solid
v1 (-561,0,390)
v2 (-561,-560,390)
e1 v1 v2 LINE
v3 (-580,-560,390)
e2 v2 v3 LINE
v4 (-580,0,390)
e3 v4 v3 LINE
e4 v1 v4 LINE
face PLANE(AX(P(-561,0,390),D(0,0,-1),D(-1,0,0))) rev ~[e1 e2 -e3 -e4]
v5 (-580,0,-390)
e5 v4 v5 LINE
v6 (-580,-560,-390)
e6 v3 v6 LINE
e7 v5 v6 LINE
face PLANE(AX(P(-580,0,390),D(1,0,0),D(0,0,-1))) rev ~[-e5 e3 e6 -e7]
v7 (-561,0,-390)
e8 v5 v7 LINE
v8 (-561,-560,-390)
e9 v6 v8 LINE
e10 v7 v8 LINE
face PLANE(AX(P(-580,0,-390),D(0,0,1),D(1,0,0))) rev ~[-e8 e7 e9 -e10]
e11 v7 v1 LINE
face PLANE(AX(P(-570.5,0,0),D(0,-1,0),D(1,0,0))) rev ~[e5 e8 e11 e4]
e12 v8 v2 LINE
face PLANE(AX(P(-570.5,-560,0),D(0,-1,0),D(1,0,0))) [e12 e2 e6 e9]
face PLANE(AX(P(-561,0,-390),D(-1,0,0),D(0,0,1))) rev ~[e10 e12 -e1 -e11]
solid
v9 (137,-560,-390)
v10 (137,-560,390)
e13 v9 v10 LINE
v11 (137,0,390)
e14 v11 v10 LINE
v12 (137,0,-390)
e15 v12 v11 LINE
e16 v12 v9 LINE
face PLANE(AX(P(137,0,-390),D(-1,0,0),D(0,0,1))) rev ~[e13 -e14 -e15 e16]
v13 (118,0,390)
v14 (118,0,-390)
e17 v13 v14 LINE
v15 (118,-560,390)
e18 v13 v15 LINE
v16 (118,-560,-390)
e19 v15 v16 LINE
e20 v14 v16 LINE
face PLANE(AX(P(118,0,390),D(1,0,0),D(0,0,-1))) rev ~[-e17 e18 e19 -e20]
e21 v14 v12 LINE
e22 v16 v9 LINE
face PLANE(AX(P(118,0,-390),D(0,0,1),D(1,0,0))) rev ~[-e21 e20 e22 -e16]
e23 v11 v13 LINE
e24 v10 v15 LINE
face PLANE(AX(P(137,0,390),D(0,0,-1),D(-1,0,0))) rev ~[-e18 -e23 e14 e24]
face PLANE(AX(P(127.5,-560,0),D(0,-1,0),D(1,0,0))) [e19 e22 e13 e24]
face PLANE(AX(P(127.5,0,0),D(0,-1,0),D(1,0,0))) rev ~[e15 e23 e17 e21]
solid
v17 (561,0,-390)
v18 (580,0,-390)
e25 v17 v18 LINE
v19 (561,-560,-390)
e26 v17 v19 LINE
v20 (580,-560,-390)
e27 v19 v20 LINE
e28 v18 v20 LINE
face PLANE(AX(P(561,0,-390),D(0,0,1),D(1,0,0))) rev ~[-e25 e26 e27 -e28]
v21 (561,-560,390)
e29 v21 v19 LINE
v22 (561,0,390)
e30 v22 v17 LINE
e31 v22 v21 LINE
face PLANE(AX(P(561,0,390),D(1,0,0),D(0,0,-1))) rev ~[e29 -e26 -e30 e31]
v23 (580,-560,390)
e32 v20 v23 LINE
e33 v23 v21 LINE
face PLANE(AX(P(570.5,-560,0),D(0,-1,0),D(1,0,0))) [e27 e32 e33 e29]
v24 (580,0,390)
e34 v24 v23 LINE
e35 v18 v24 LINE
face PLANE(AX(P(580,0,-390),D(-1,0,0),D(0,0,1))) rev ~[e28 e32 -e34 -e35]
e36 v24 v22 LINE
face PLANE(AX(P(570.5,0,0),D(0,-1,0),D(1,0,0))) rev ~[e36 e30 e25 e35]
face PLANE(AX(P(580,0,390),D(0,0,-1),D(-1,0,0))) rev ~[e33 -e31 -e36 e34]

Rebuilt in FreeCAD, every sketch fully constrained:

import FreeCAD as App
import Part
import Sketcher
Q = App.Units.Quantity

doc = App.newDocument("Part")
body = doc.addObject("PartDesign::Body", "Body")

# Sketch on XZ plane
sketch1 = body.newObject("Sketcher::SketchObject", "Sketch")
sketch1.AttachmentSupport = (doc.getObject("XZ_Plane"), [""])
sketch1.MapMode = "FlatFace"
sketch1.addGeometry(Part.LineSegment(App.Vector(-580, 390, 0), App.Vector(-580, -390, 0)), False)
sketch1.addGeometry(Part.LineSegment(App.Vector(-580, -390, 0), App.Vector(-561, -390, 0)), False)
sketch1.addGeometry(Part.LineSegment(App.Vector(-561, -390, 0), App.Vector(-561, 390, 0)), False)
sketch1.addGeometry(Part.LineSegment(App.Vector(-561, 390, 0), App.Vector(-580, 390, 0)), False)
sketch1.addConstraint(Sketcher.Constraint("Coincident", 0, 2, 1, 1))
sketch1.addConstraint(Sketcher.Constraint("Coincident", 1, 2, 2, 1))
sketch1.addConstraint(Sketcher.Constraint("Coincident", 2, 2, 3, 1))
sketch1.addConstraint(Sketcher.Constraint("Coincident", 3, 2, 0, 1))
sketch1.addConstraint(Sketcher.Constraint("Vertical", 0))
sketch1.addConstraint(Sketcher.Constraint("Horizontal", 1))
sketch1.addConstraint(Sketcher.Constraint("Vertical", 2))
sketch1.addConstraint(Sketcher.Constraint("Horizontal", 3))
sketch1.addConstraint(Sketcher.Constraint("DistanceX", 1, 1, 1, 2, Q("19 mm")))
sketch1.addConstraint(Sketcher.Constraint("DistanceY", 0, 2, 0, 1, Q("780 mm")))
sketch1.addConstraint(Sketcher.Constraint("DistanceX", 0, 2, -1, 1, Q("580 mm")))
sketch1.addConstraint(Sketcher.Constraint("DistanceY", 0, 2, -1, 1, Q("390 mm")))
pad1 = body.newObject("PartDesign::Pad", "Pad")
pad1.Profile = sketch1
pad1.Length = 560
body2 = doc.addObject("PartDesign::Body", "Body001")

# Sketch on XZ plane
sketch2 = body2.newObject("Sketcher::SketchObject", "Sketch001")
sketch2.AttachmentSupport = (doc.getObject("XZ_Plane001"), [""])
sketch2.MapMode = "FlatFace"
sketch2.addGeometry(Part.LineSegment(App.Vector(561, -390, 0), App.Vector(580, -390, 0)), False)
sketch2.addGeometry(Part.LineSegment(App.Vector(580, -390, 0), App.Vector(580, 390, 0)), False)
sketch2.addGeometry(Part.LineSegment(App.Vector(580, 390, 0), App.Vector(561, 390, 0)), False)
sketch2.addGeometry(Part.LineSegment(App.Vector(561, 390, 0), App.Vector(561, -390, 0)), False)
sketch2.addConstraint(Sketcher.Constraint("Coincident", 0, 2, 1, 1))
sketch2.addConstraint(Sketcher.Constraint("Coincident", 1, 2, 2, 1))
sketch2.addConstraint(Sketcher.Constraint("Coincident", 2, 2, 3, 1))
sketch2.addConstraint(Sketcher.Constraint("Coincident", 3, 2, 0, 1))
sketch2.addConstraint(Sketcher.Constraint("Horizontal", 0))
sketch2.addConstraint(Sketcher.Constraint("Vertical", 1))
sketch2.addConstraint(Sketcher.Constraint("Horizontal", 2))
sketch2.addConstraint(Sketcher.Constraint("Vertical", 3))
sketch2.addConstraint(Sketcher.Constraint("DistanceX", 0, 1, 0, 2, Q("19 mm")))
sketch2.addConstraint(Sketcher.Constraint("DistanceY", 1, 1, 1, 2, Q("780 mm")))
sketch2.addConstraint(Sketcher.Constraint("DistanceX", -1, 1, 0, 2, Q("580 mm")))
sketch2.addConstraint(Sketcher.Constraint("DistanceY", 0, 2, -1, 1, Q("390 mm")))
pad2 = body2.newObject("PartDesign::Pad", "Pad001")
pad2.Profile = sketch2
pad2.Length = 560
body3 = doc.addObject("PartDesign::Body", "Body002")

# Sketch on XZ plane
sketch3 = body3.newObject("Sketcher::SketchObject", "Sketch002")
sketch3.AttachmentSupport = (doc.getObject("XZ_Plane002"), [""])
sketch3.MapMode = "FlatFace"
sketch3.addGeometry(Part.LineSegment(App.Vector(118, -390, 0), App.Vector(137, -390, 0)), False)
sketch3.addGeometry(Part.LineSegment(App.Vector(137, -390, 0), App.Vector(137, 390, 0)), False)
sketch3.addGeometry(Part.LineSegment(App.Vector(137, 390, 0), App.Vector(118, 390, 0)), False)
sketch3.addGeometry(Part.LineSegment(App.Vector(118, 390, 0), App.Vector(118, -390, 0)), False)
sketch3.addConstraint(Sketcher.Constraint("Coincident", 0, 2, 1, 1))
sketch3.addConstraint(Sketcher.Constraint("Coincident", 1, 2, 2, 1))
sketch3.addConstraint(Sketcher.Constraint("Coincident", 2, 2, 3, 1))
sketch3.addConstraint(Sketcher.Constraint("Coincident", 3, 2, 0, 1))
sketch3.addConstraint(Sketcher.Constraint("Horizontal", 0))
sketch3.addConstraint(Sketcher.Constraint("Vertical", 1))
sketch3.addConstraint(Sketcher.Constraint("Horizontal", 2))
sketch3.addConstraint(Sketcher.Constraint("Vertical", 3))
sketch3.addConstraint(Sketcher.Constraint("DistanceX", 0, 1, 0, 2, Q("19 mm")))
sketch3.addConstraint(Sketcher.Constraint("DistanceY", 1, 1, 1, 2, Q("780 mm")))
sketch3.addConstraint(Sketcher.Constraint("DistanceX", -1, 1, 0, 2, Q("137 mm")))
sketch3.addConstraint(Sketcher.Constraint("DistanceY", 0, 2, -1, 1, Q("390 mm")))
pad3 = body3.newObject("PartDesign::Pad", "Pad002")
pad3.Profile = sketch3
pad3.Length = 560

doc.recompute()
